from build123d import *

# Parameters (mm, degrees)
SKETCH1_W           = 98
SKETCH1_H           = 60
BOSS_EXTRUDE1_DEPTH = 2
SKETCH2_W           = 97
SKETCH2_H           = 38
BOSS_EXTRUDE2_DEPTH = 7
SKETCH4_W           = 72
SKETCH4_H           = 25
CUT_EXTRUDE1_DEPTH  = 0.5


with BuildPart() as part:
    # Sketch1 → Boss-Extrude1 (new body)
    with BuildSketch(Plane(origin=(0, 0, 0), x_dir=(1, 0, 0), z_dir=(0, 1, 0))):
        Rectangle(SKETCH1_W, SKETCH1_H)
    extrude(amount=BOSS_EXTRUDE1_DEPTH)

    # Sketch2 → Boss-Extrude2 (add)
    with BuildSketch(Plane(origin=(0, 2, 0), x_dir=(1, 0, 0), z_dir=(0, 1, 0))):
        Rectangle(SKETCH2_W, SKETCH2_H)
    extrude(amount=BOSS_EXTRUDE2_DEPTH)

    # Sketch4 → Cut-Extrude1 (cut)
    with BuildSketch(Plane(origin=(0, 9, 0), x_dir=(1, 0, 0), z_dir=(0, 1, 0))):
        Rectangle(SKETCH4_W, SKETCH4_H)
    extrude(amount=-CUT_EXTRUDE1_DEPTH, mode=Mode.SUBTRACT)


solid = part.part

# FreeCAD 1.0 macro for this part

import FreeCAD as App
import Part
import Sketcher
Q = App.Units.Quantity


def add_polygon(sketch, points):
    """Adds a closed chain of lines whose ends are joined by coincident constraints."""
    first, n = sketch.GeometryCount, len(points)
    for a, b in zip(points, points[1:] + points[:1]):
        sketch.addGeometry(Part.LineSegment(App.Vector(*a, 0), App.Vector(*b, 0)), False)
    for i in range(n):
        sketch.addConstraint(Sketcher.Constraint("Coincident", first + i, 2, first + (i + 1) % n, 1))

doc = App.newDocument("Part")
body = doc.addObject("PartDesign::Body", "Body")

# Sketch on XZ plane
sketch1 = doc.addObject("Sketcher::SketchObject", "Sketch")
body.addObject(sketch1)
sketch1.AttachmentSupport = (doc.XZ_Plane, [""])
sketch1.MapMode = "FlatFace"
add_polygon(sketch1, [(-49, -30), (-49, 30), (49, 30), (49, -30)])  # lines 0-3
sketch1.addConstraint([
    Sketcher.Constraint("Vertical", 0),
    Sketcher.Constraint("Horizontal", 1),
    Sketcher.Constraint("Vertical", 2),
    Sketcher.Constraint("Horizontal", 3),
    Sketcher.Constraint("Symmetric", 0, 2, 2, 2, -1, 1),
    Sketcher.Constraint("DistanceX", 1, 1, 1, 2, Q("98 mm")),
    Sketcher.Constraint("DistanceY", 0, 1, 0, 2, Q("60 mm")),
])
pad1 = doc.addObject("PartDesign::Pad", "Pad")
body.addObject(pad1)
pad1.Profile = sketch1
pad1.Length = 2
pad1.Reversed = True

# Sketch on XZ plane
sketch2 = doc.addObject("Sketcher::SketchObject", "Sketch001")
body.addObject(sketch2)
sketch2.AttachmentSupport = (doc.XZ_Plane, [""])
sketch2.MapMode = "FlatFace"
sketch2.AttachmentOffset = App.Placement(App.Vector(0, 0, -2), App.Rotation())
add_polygon(sketch2, [(-48.5, -19), (-48.5, 19), (48.5, 19), (48.5, -19)])  # lines 0-3
sketch2.addConstraint([
    Sketcher.Constraint("Vertical", 0),
    Sketcher.Constraint("Horizontal", 1),
    Sketcher.Constraint("Vertical", 2),
    Sketcher.Constraint("Horizontal", 3),
    Sketcher.Constraint("Symmetric", 0, 2, 2, 2, -1, 1),
    Sketcher.Constraint("DistanceX", 1, 1, 1, 2, Q("97 mm")),
    Sketcher.Constraint("DistanceY", 0, 1, 0, 2, Q("38 mm")),
])
pad2 = doc.addObject("PartDesign::Pad", "Pad001")
body.addObject(pad2)
pad2.Profile = sketch2
pad2.Length = 7
pad2.Reversed = True

# Sketch on XZ plane
sketch3 = doc.addObject("Sketcher::SketchObject", "Sketch002")
body.addObject(sketch3)
sketch3.AttachmentSupport = (doc.XZ_Plane, [""])
sketch3.MapMode = "FlatFace"
sketch3.AttachmentOffset = App.Placement(App.Vector(0, 0, -9), App.Rotation())
add_polygon(sketch3, [(-36, -12.5), (-36, 12.5), (36, 12.5), (36, -12.5)])  # lines 0-3
sketch3.addConstraint([
    Sketcher.Constraint("Vertical", 0),
    Sketcher.Constraint("Horizontal", 1),
    Sketcher.Constraint("Vertical", 2),
    Sketcher.Constraint("Horizontal", 3),
    Sketcher.Constraint("Symmetric", 0, 2, 2, 2, -1, 1),
    Sketcher.Constraint("DistanceX", 1, 1, 1, 2, Q("72 mm")),
    Sketcher.Constraint("DistanceY", 0, 1, 0, 2, Q("25 mm")),
])
pocket1 = doc.addObject("PartDesign::Pocket", "Pocket")
body.addObject(pocket1)
pocket1.Profile = sketch3
pocket1.Length = 0.5
pocket1.Reversed = True

doc.recompute()
